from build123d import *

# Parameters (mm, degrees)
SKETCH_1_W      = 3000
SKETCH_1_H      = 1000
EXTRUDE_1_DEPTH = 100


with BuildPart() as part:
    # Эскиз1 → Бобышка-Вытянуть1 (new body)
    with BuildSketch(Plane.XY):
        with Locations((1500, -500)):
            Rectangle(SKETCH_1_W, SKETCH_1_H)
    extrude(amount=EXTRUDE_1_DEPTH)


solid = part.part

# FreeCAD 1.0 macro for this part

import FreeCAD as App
import Part
import Sketcher
from FreeCAD import Vector


def add_polygon(sketch, points):
    """Adds a closed chain of lines whose ends are joined by coincident constraints."""
    first, n = sketch.GeometryCount, len(points)
    for a, b in zip(points, points[1:] + points[:1]):
        sketch.addGeometry(Part.LineSegment(App.Vector(*a, 0), App.Vector(*b, 0)), False)
    for i in range(n):
        sketch.addConstraint(Sketcher.Constraint("Coincident", first + i, 2, first + (i + 1) % n, 1))

doc = App.newDocument("Part")
body = doc.addObject("PartDesign::Body", "Body")

sketch1 = doc.addObject("Sketcher::SketchObject", "Sketch")
body.addObject(sketch1)
sketch1.AttachmentSupport = (doc.XY_Plane, [""])
sketch1.MapMode = "FlatFace"
add_polygon(sketch1, [(0, 0), (0, -1000), (3000, -1000), (3000, 0)])
sketch1.addConstraint(Sketcher.Constraint("Vertical", 0))
sketch1.addConstraint(Sketcher.Constraint("Horizontal", 1))
sketch1.addConstraint(Sketcher.Constraint("Vertical", 2))
sketch1.addConstraint(Sketcher.Constraint("Horizontal", 3))
sketch1.addConstraint(Sketcher.Constraint("Coincident", 3, 2, -1, 1))
sketch1.addConstraint(Sketcher.Constraint("DistanceX", 1, 1, 1, 2, 3000.0))
sketch1.addConstraint(Sketcher.Constraint("DistanceY", 0, 2, 0, 1, 1000.0))
pad1 = doc.addObject("PartDesign::Pad", "Pad")
body.addObject(pad1)
pad1.Profile = sketch1
pad1.Length = 100

doc.recompute()
